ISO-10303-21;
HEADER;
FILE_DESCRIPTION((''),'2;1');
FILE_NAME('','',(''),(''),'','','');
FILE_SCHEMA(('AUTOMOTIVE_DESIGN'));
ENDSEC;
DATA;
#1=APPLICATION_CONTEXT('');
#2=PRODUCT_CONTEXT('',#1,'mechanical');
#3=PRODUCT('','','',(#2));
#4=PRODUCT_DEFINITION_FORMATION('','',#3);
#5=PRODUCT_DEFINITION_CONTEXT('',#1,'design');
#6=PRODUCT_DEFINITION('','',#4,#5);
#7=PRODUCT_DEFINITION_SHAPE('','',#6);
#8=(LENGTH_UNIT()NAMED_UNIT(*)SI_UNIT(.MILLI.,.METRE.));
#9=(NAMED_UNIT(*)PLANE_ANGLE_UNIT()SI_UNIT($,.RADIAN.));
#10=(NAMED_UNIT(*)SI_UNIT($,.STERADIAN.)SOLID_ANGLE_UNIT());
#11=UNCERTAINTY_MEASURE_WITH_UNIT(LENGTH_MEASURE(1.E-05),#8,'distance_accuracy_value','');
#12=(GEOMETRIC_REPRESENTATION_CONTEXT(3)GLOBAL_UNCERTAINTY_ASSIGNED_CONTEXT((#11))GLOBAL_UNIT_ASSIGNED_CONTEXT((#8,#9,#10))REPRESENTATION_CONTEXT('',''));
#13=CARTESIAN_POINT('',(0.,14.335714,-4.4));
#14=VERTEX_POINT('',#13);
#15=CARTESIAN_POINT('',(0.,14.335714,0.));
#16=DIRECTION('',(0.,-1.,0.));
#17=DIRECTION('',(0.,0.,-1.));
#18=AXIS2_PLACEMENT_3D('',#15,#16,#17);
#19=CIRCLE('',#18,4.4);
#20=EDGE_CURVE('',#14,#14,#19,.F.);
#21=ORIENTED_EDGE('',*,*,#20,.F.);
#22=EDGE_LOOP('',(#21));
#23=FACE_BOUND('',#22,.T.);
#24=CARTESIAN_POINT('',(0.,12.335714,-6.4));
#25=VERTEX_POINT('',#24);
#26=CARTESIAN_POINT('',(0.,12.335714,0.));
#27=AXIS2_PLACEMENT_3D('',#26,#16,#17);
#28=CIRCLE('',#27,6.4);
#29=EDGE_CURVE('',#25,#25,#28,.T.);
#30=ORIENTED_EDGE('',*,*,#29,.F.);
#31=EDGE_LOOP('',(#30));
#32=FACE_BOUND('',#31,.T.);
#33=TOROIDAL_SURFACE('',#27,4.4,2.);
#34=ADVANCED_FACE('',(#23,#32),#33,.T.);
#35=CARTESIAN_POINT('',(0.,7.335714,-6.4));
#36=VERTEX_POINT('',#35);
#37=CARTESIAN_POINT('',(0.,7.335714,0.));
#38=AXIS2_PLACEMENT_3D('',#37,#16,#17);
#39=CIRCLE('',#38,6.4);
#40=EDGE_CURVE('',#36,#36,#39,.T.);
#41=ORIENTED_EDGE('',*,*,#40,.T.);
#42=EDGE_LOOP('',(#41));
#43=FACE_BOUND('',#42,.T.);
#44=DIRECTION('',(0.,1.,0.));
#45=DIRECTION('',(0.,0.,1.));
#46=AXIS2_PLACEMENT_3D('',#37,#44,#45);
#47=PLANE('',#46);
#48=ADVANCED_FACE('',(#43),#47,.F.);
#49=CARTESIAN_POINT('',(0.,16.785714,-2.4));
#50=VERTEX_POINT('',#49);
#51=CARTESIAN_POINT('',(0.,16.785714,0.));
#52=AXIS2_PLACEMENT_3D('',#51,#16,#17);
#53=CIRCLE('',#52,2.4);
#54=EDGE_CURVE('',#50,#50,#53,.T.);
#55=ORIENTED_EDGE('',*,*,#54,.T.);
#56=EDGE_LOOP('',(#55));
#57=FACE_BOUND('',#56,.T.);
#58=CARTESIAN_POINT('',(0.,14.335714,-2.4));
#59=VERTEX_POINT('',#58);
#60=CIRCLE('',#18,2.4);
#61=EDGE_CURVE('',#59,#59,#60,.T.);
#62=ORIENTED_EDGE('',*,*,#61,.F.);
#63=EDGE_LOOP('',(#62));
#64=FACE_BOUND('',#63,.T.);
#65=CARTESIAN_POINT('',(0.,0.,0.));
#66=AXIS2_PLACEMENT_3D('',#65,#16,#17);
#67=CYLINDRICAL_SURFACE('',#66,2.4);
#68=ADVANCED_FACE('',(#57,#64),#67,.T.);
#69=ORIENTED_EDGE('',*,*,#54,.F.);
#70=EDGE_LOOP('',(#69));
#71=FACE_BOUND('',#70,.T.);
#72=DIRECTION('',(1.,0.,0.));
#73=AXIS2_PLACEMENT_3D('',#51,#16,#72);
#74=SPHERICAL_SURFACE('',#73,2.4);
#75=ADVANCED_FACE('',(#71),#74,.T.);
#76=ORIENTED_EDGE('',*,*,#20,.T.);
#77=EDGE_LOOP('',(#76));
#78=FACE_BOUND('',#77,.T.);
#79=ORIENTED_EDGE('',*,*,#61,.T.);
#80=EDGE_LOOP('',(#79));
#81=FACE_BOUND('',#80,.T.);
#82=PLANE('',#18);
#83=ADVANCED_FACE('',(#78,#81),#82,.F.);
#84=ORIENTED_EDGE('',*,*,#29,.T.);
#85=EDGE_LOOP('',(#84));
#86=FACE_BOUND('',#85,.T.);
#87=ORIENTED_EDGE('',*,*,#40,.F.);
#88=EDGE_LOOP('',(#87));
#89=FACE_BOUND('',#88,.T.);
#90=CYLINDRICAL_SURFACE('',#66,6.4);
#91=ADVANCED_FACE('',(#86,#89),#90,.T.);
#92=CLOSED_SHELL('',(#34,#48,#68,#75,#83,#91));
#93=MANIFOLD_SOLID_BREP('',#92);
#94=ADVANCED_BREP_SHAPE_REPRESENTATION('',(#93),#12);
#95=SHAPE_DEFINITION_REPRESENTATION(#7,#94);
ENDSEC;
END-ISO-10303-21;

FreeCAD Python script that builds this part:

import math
import FreeCAD as App
import Part
import Sketcher
from FreeCAD import Vector


def edges_at(feature, points):
    """Names of the edges that pass closest to the given points."""
    edges = feature.Shape.Edges
    near = lambda p: min(range(len(edges)), key=lambda i: edges[i].distToShape(Part.Vertex(*p))[0])
    return sorted({f"Edge{near(p) + 1}" for p in points})

doc = App.newDocument("Part")
body = doc.addObject("PartDesign::Body", "Body")

sketch1 = body.newObject("Sketcher::SketchObject", "Sketch")
sketch1.AttachmentSupport = (doc.getObject("XY_Plane"), [""])
sketch1.MapMode = "FlatFace"
sketch1.addGeometry([
    Part.LineSegment(Vector(0, 19.2, 0), Vector(0, 7.3, 0)),
    Part.LineSegment(Vector(0, 7.3, 0), Vector(6.4, 7.3, 0)),
    Part.LineSegment(Vector(6.4, 7.3, 0), Vector(6.4, 14.3, 0)),
    Part.LineSegment(Vector(6.4, 14.3, 0), Vector(2.4, 14.3, 0)),
    Part.LineSegment(Vector(2.4, 14.3, 0), Vector(2.4, 16.8, 0)),
    Part.ArcOfCircle(Part.Circle(Vector(0, 16.8, 0), Vector(0, 0, 1), 2.4), math.radians(0), math.radians(90)),
], False)
sketch1.addConstraint([
    Sketcher.Constraint("Coincident", 0, 2, 1, 1),
    Sketcher.Constraint("Coincident", 1, 2, 2, 1),
    Sketcher.Constraint("Coincident", 2, 2, 3, 1),
    Sketcher.Constraint("Coincident", 3, 2, 4, 1),
    Sketcher.Constraint("Tangent", 4, 2, 5, 1),
    Sketcher.Constraint("Coincident", 5, 2, 0, 1),
    Sketcher.Constraint("Vertical", 0),
    Sketcher.Constraint("Horizontal", 1),
    Sketcher.Constraint("Vertical", 2),
    Sketcher.Constraint("Horizontal", 3),
    Sketcher.Constraint("Vertical", 4),
    Sketcher.Constraint("PointOnObject", 5, 3, -2),
    Sketcher.Constraint("PointOnObject", 0, 2, -2),
    Sketcher.Constraint("Radius", 5, 2.4),
    Sketcher.Constraint("DistanceX", 3, 2, 3, 1, 4.0),
    Sketcher.Constraint("DistanceY", 2, 1, 2, 2, 7.0),
    Sketcher.Constraint("DistanceY", 0, 2, 0, 1, 11.85),
    Sketcher.Constraint("DistanceY", -1, 1, 5, 3, 16.785714),
])
revolution = body.newObject("PartDesign::Revolution", "Revolution")
revolution.Profile = sketch1
revolution.ReferenceAxis = (sketch1, ["V_Axis"])
revolution.Angle = 360
doc.recompute()

fillet = body.newObject("PartDesign::Fillet", "Fillet")
fillet.Base = (revolution, edges_at(revolution, [(-6.4, 14.336, 0)]))
fillet.Radius = 2

doc.recompute()
